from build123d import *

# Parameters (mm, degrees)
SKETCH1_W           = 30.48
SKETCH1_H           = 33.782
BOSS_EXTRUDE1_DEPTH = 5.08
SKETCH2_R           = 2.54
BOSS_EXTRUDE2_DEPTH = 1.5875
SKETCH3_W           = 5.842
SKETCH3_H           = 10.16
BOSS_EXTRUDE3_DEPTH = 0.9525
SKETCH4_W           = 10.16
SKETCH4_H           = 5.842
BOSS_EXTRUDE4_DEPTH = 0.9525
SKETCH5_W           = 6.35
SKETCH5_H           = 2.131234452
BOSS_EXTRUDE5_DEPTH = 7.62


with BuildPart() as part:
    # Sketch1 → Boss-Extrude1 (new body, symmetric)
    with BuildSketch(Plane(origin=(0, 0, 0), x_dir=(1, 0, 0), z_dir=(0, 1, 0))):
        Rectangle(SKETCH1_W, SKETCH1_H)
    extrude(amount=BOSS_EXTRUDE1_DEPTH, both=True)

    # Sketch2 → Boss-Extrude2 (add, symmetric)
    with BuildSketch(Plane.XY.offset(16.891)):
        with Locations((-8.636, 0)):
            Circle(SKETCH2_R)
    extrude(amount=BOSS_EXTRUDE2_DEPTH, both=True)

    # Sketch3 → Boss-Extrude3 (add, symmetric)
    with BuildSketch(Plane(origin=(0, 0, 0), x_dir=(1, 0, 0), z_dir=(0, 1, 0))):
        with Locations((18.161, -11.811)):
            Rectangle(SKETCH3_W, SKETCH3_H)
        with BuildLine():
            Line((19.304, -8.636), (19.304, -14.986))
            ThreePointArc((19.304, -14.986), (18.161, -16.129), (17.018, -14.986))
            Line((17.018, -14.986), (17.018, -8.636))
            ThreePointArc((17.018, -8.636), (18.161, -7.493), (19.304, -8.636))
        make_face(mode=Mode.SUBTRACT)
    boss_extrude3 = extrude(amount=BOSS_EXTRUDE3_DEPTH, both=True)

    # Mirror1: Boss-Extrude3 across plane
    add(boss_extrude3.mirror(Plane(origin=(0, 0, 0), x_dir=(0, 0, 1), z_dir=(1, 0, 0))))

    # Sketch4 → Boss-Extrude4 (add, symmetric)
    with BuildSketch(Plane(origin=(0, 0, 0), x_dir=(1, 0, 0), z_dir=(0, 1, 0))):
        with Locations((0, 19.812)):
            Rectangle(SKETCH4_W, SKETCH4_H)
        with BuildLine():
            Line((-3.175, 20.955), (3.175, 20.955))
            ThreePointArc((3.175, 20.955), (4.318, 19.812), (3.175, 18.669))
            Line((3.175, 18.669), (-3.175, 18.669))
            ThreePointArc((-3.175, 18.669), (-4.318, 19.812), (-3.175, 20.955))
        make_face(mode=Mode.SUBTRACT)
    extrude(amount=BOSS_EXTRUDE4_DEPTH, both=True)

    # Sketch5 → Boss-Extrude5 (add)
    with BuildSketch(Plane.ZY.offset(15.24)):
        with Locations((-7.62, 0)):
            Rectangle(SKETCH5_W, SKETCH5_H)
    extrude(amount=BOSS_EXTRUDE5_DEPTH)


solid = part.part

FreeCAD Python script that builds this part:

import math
import FreeCAD as App
import Part
import Sketcher
from FreeCAD import Vector
Q = App.Units.Quantity


def add_polygon(sketch, points):
    """Adds a closed chain of lines whose ends are joined by coincident constraints."""
    first, n = sketch.GeometryCount, len(points)
    for a, b in zip(points, points[1:] + points[:1]):
        sketch.addGeometry(Part.LineSegment(App.Vector(*a, 0), App.Vector(*b, 0)), False)
    for i in range(n):
        sketch.addConstraint(Sketcher.Constraint("Coincident", first + i, 2, first + (i + 1) % n, 1))

doc = App.newDocument("Part")
body = doc.addObject("PartDesign::Body", "Body")

# Sketch on XZ plane
sketch1 = body.newObject("Sketcher::SketchObject", "Sketch")
sketch1.AttachmentSupport = (doc.getObject("XZ_Plane"), [""])
sketch1.MapMode = "FlatFace"
add_polygon(sketch1, [(-15, -17), (-15, 17), (15, 17), (15, -17)])  # lines 0-3
sketch1.addConstraint(Sketcher.Constraint("Vertical", 0))
sketch1.addConstraint(Sketcher.Constraint("Horizontal", 1))
sketch1.addConstraint(Sketcher.Constraint("Vertical", 2))
sketch1.addConstraint(Sketcher.Constraint("Horizontal", 3))
sketch1.addConstraint(Sketcher.Constraint("Symmetric", 0, 2, 2, 2, -1, 1))
sketch1.addConstraint(Sketcher.Constraint("DistanceX", 1, 1, 1, 2, Q("1.2 in")))
sketch1.addConstraint(Sketcher.Constraint("DistanceY", 0, 1, 0, 2, Q("1.33 in")))
pad1 = body.newObject("PartDesign::Pad", "Pad")
pad1.Profile = sketch1
pad1.Length = Q("0.4 in")
pad1.Midplane = True

# Sketch on XY plane
sketch2 = body.newObject("Sketcher::SketchObject", "Sketch001")
sketch2.AttachmentSupport = (doc.getObject("XY_Plane"), [""])
sketch2.MapMode = "FlatFace"
sketch2.AttachmentOffset = App.Placement(Vector(0, 0, 0.665 * 25.4), App.Rotation())
sketch2.addGeometry(Part.Circle(Vector(-8.6, 0, 0), Vector(0, 0, 1), 2.5), False)
sketch2.addConstraint(Sketcher.Constraint("PointOnObject", 0, 3, -1))
sketch2.addConstraint(Sketcher.Constraint("Diameter", 0, Q("0.2 in")))
sketch2.addConstraint(Sketcher.Constraint("DistanceX", 0, 3, -1, 1, Q("0.34 in")))
pad2 = body.newObject("PartDesign::Pad", "Pad001")
pad2.Profile = sketch2
pad2.Length = Q("0.125 in")
pad2.Midplane = True

# Sketch on XZ plane
sketch3 = body.newObject("Sketcher::SketchObject", "Sketch002")
sketch3.AttachmentSupport = (doc.getObject("XZ_Plane"), [""])
sketch3.MapMode = "FlatFace"
add_polygon(sketch3, [(15.2, 6.7), (15.2, 16.9), (21.1, 16.9), (21.1, 6.7)])  # lines 0-3
sketch3.addGeometry(Part.ArcOfCircle(Part.Circle(Vector(18.2, 8.6, 0), Vector(0, 0, 1), 1.1), math.radians(180), math.radians(360)), False)  # 4
sketch3.addGeometry(Part.LineSegment(Vector(19.3, 8.6, 0), Vector(19.3, 15, 0)), False)  # 5
sketch3.addGeometry(Part.ArcOfCircle(Part.Circle(Vector(18.2, 15, 0), Vector(0, 0, 1), 1.1), math.radians(0), math.radians(180)), False)  # 6
sketch3.addGeometry(Part.LineSegment(Vector(17, 15, 0), Vector(17, 8.6, 0)), False)  # 7
sketch3.addConstraint(Sketcher.Constraint("Tangent", 4, 2, 5, 1))
sketch3.addConstraint(Sketcher.Constraint("Tangent", 5, 2, 6, 1))
sketch3.addConstraint(Sketcher.Constraint("Tangent", 6, 2, 7, 1))
sketch3.addConstraint(Sketcher.Constraint("Tangent", 7, 2, 4, 1))
sketch3.addConstraint(Sketcher.Constraint("Vertical", 0))
sketch3.addConstraint(Sketcher.Constraint("Horizontal", 1))
sketch3.addConstraint(Sketcher.Constraint("Vertical", 2))
sketch3.addConstraint(Sketcher.Constraint("Horizontal", 3))
sketch3.addConstraint(Sketcher.Constraint("Vertical", 5))
sketch3.addConstraint(Sketcher.Constraint("Vertical", 7))
sketch3.addConstraint(Sketcher.Constraint("DistanceY", 0, 1, 0, 2, Q("0.4 in")))
sketch3.addConstraint(Sketcher.Constraint("Radius", 4, Q("0.045 in")))
sketch3.addConstraint(Sketcher.Constraint("DistanceX", 1, 1, 1, 2, Q("0.23 in")))
sketch3.addConstraint(Sketcher.Constraint("DistanceY", 5, 1, 5, 2, Q("0.25 in")))
sketch3.addConstraint(Sketcher.Constraint("DistanceX", -1, 1, 0, 2, Q("0.6 in")))
sketch3.addConstraint(Sketcher.Constraint("DistanceY", -1, 1, 4, 3, Q("0.34 in")))
sketch3.addConstraint(Sketcher.Constraint("DistanceX", -1, 1, 4, 2, Q("0.76 in")))
sketch3.addConstraint(Sketcher.Constraint("DistanceY", -1, 1, 0, 2, Q("0.665 in")))
pad3 = body.newObject("PartDesign::Pad", "Pad002")
pad3.Profile = sketch3
pad3.Length = Q("0.075 in")
pad3.Midplane = True
doc.recompute()

mirrored = body.newObject("PartDesign::Mirrored", "Mirrored")
mirrored.Originals = [pad3]
mirrored.MirrorPlane = (doc.getObject("YZ_Plane"), [""])
body.Tip = mirrored

# Sketch on XZ plane
sketch4 = body.newObject("Sketcher::SketchObject", "Sketch003")
sketch4.AttachmentSupport = (doc.getObject("XZ_Plane"), [""])
sketch4.MapMode = "FlatFace"
add_polygon(sketch4, [(-5.1, -22.7), (-5.1, -16.9), (5.1, -16.9), (5.1, -22.7)])  # lines 0-3
sketch4.addGeometry(Part.ArcOfCircle(Part.Circle(Vector(-3.2, -19.8, 0), Vector(0, 0, 1), 1.1), math.radians(90), math.radians(270)), False)  # 4
sketch4.addGeometry(Part.LineSegment(Vector(-3.2, -21, 0), Vector(3.2, -21, 0)), False)  # 5
sketch4.addGeometry(Part.ArcOfCircle(Part.Circle(Vector(3.2, -19.8, 0), Vector(0, 0, 1), 1.1), math.radians(-90), math.radians(90)), False)  # 6
sketch4.addGeometry(Part.LineSegment(Vector(3.2, -18.7, 0), Vector(-3.2, -18.7, 0)), False)  # 7
sketch4.addConstraint(Sketcher.Constraint("Tangent", 4, 2, 5, 1))
sketch4.addConstraint(Sketcher.Constraint("Tangent", 5, 2, 6, 1))
sketch4.addConstraint(Sketcher.Constraint("Tangent", 6, 2, 7, 1))
sketch4.addConstraint(Sketcher.Constraint("Tangent", 7, 2, 4, 1))
sketch4.addConstraint(Sketcher.Constraint("Vertical", 0))
sketch4.addConstraint(Sketcher.Constraint("Horizontal", 1))
sketch4.addConstraint(Sketcher.Constraint("Vertical", 2))
sketch4.addConstraint(Sketcher.Constraint("Horizontal", 3))
sketch4.addConstraint(Sketcher.Constraint("Horizontal", 5))
sketch4.addConstraint(Sketcher.Constraint("Horizontal", 7))
sketch4.addConstraint(Sketcher.Constraint("DistanceX", 1, 1, 1, 2, Q("0.4 in")))
sketch4.addConstraint(Sketcher.Constraint("Radius", 4, Q("0.045 in")))
sketch4.addConstraint(Sketcher.Constraint("DistanceX", 5, 1, 5, 2, Q("0.25 in")))
sketch4.addConstraint(Sketcher.Constraint("DistanceY", 0, 1, 0, 2, Q("0.23 in")))
sketch4.addConstraint(Sketcher.Constraint("DistanceX", 0, 2, -1, 1, Q("0.2 in")))
sketch4.addConstraint(Sketcher.Constraint("DistanceY", 4, 3, -1, 1, Q("0.78 in")))
sketch4.addConstraint(Sketcher.Constraint("DistanceY", 3, 2, 4, 2, Q("0.07 in")))
sketch4.addConstraint(Sketcher.Constraint("DistanceX", 4, 3, -1, 1, Q("0.125 in")))
pad4 = body.newObject("PartDesign::Pad", "Pad003")
pad4.Profile = sketch4
pad4.Length = Q("0.075 in")
pad4.Midplane = True

# Sketch on YZ plane
sketch5 = body.newObject("Sketcher::SketchObject", "Sketch004")
sketch5.AttachmentSupport = (doc.getObject("YZ_Plane"), [""])
sketch5.MapMode = "FlatFace"
sketch5.AttachmentOffset = App.Placement(Vector(0, 0, -0.6 * 25.4), App.Rotation())
add_polygon(sketch5, [(1.1, -10.8), (-1.1, -10.8), (-1.1, -4.4), (1.1, -4.4)])  # lines 0-3
sketch5.addConstraint(Sketcher.Constraint("Horizontal", 0))
sketch5.addConstraint(Sketcher.Constraint("Vertical", 1))
sketch5.addConstraint(Sketcher.Constraint("Horizontal", 2))
sketch5.addConstraint(Sketcher.Constraint("Vertical", 3))
sketch5.addConstraint(Sketcher.Constraint("DistanceY", 1, 1, 1, 2, Q("0.25 in")))
sketch5.addConstraint(Sketcher.Constraint("DistanceY", 0, 2, -1, 1, Q("0.425 in")))
sketch5.addConstraint(Sketcher.Constraint("DistanceX", 0, 2, 0, 1, Q("2.131234 mm")))
sketch5.addConstraint(Sketcher.Constraint("DistanceX", 0, 2, -1, 1, Q("1.065617 mm")))
pad5 = body.newObject("PartDesign::Pad", "Pad004")
pad5.Profile = sketch5
pad5.Length = Q("0.3 in")
pad5.Reversed = True

doc.recompute()
